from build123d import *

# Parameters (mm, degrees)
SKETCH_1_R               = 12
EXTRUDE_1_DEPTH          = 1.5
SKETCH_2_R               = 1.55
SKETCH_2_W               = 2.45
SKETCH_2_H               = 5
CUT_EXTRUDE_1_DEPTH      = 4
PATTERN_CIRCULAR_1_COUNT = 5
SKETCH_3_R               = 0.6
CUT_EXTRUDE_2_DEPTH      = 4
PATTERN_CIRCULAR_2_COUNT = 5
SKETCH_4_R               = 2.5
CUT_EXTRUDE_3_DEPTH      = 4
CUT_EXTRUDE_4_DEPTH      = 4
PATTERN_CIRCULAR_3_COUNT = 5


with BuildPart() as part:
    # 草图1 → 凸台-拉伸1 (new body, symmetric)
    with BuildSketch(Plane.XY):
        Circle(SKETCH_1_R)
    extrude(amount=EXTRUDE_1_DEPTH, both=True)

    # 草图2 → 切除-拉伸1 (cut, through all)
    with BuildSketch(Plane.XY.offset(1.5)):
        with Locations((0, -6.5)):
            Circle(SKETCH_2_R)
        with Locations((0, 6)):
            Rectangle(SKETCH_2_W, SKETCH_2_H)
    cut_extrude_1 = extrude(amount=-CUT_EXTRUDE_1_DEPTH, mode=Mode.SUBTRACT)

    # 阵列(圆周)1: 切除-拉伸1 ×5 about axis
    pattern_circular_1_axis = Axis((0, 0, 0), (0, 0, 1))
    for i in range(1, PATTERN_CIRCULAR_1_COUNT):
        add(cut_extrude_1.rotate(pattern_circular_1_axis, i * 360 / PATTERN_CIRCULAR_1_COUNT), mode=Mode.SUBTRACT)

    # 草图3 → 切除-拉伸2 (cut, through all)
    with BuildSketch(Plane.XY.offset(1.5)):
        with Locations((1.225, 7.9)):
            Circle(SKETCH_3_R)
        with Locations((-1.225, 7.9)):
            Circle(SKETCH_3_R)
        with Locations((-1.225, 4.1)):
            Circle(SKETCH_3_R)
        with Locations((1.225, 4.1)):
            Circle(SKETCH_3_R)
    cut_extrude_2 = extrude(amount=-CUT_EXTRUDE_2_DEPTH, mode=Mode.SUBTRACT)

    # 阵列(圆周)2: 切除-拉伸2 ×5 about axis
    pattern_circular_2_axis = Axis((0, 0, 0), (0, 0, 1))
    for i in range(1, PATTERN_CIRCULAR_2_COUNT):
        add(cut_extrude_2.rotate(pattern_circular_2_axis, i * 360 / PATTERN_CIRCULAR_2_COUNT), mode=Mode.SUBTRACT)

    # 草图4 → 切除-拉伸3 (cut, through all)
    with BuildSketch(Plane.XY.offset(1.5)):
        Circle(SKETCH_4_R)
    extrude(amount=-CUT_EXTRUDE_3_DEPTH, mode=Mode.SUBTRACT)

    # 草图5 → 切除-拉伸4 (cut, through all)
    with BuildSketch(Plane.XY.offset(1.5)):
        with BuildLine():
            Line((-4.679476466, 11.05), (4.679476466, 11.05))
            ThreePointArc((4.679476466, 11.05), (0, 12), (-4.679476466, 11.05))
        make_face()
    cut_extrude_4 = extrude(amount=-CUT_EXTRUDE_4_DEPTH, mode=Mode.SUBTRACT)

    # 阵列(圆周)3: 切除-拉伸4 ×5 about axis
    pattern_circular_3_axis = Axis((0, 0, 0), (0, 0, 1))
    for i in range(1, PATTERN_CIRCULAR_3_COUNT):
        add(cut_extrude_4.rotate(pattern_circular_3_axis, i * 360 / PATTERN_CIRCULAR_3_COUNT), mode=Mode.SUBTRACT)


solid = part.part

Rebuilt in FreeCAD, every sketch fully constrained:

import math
import FreeCAD as App
import Part
import Sketcher
from FreeCAD import Vector


def add_polygon(sketch, points):
    """Adds a closed chain of lines whose ends are joined by coincident constraints."""
    first, n = sketch.GeometryCount, len(points)
    for a, b in zip(points, points[1:] + points[:1]):
        sketch.addGeometry(Part.LineSegment(App.Vector(*a, 0), App.Vector(*b, 0)), False)
    for i in range(n):
        sketch.addConstraint(Sketcher.Constraint("Coincident", first + i, 2, first + (i + 1) % n, 1))

doc = App.newDocument("Part")
body = doc.addObject("PartDesign::Body", "Body")

# Sketch on XY plane
sketch1 = body.newObject("Sketcher::SketchObject", "Sketch")
sketch1.AttachmentSupport = (doc.getObject("XY_Plane"), [""])
sketch1.MapMode = "FlatFace"
sketch1.addGeometry(Part.Circle(Vector(0, 0, 0), Vector(0, 0, 1), 12), False)
sketch1.addConstraint([
    Sketcher.Constraint("Coincident", 0, 3, -1, 1),
    Sketcher.Constraint("Diameter", 0, 24.0),
])
pad1 = body.newObject("PartDesign::Pad", "Pad")
pad1.Profile = sketch1
pad1.Length = 3
pad1.Midplane = True

# Sketch on XY plane
sketch2 = body.newObject("Sketcher::SketchObject", "Sketch001")
sketch2.AttachmentSupport = (doc.getObject("XY_Plane"), [""])
sketch2.MapMode = "FlatFace"
sketch2.AttachmentOffset = App.Placement(Vector(0, 0, 1.5), App.Rotation())
sketch2.addGeometry(Part.Circle(Vector(0, -6.5, 0), Vector(0, 0, 1), 1.55), False)  # 0
add_polygon(sketch2, [(-1.225, 8.5), (-1.225, 3.5), (1.225, 3.5), (1.225, 8.5)])  # lines 1-4
sketch2.addConstraint([
    Sketcher.Constraint("Vertical", 1),
    Sketcher.Constraint("Horizontal", 2),
    Sketcher.Constraint("Vertical", 3),
    Sketcher.Constraint("Horizontal", 4),
    Sketcher.Constraint("PointOnObject", 0, 3, -2),
    Sketcher.Constraint("Diameter", 0, 3.1),
    Sketcher.Constraint("DistanceY", 1, 2, 1, 1, 5.0),
    Sketcher.Constraint("DistanceY", 0, 3, 1, 2, 10.0),
    Sketcher.Constraint("DistanceX", 2, 1, 2, 2, 2.45),
    Sketcher.Constraint("DistanceY", 0, 3, -1, 1, 6.5),
    Sketcher.Constraint("DistanceX", 1, 2, -1, 1, 1.225),
])
pocket1 = body.newObject("PartDesign::Pocket", "Pocket")
pocket1.Profile = sketch2
pocket1.Type = "ThroughAll"
doc.recompute()

polarpattern = body.newObject("PartDesign::PolarPattern", "PolarPattern")
polarpattern.Originals = [pocket1]
polarpattern.Axis = (doc.getObject("Z_Axis"), [""])
polarpattern.Angle = 360
polarpattern.Occurrences = 5
body.Tip = polarpattern

# Sketch on XY plane
sketch3 = body.newObject("Sketcher::SketchObject", "Sketch002")
sketch3.AttachmentSupport = (doc.getObject("XY_Plane"), [""])
sketch3.MapMode = "FlatFace"
sketch3.AttachmentOffset = App.Placement(Vector(0, 0, 1.5), App.Rotation())
sketch3.addGeometry([
    Part.Circle(Vector(1.225, 7.9, 0), Vector(0, 0, 1), 0.6),
    Part.Circle(Vector(-1.225, 7.9, 0), Vector(0, 0, 1), 0.6),
    Part.Circle(Vector(-1.225, 4.1, 0), Vector(0, 0, 1), 0.6),
    Part.Circle(Vector(1.225, 4.1, 0), Vector(0, 0, 1), 0.6),
], False)
sketch3.addConstraint([
    Sketcher.Constraint("Equal", 0, 1),
    Sketcher.Constraint("Equal", 1, 2),
    Sketcher.Constraint("Equal", 2, 3),
    Sketcher.Constraint("Symmetric", 0, 3, 1, 3, -2),
    Sketcher.Constraint("Symmetric", 2, 3, 3, 3, -2),
    Sketcher.Constraint("Vertical", 1, 3, 2, 3),
    Sketcher.Constraint("Diameter", 0, 1.2),
    Sketcher.Constraint("DistanceY", -1, 1, 0, 3, 7.9),
    Sketcher.Constraint("DistanceY", -1, 1, 2, 3, 4.1),
    Sketcher.Constraint("DistanceX", 1, 3, 0, 3, 2.45),
])
pocket2 = body.newObject("PartDesign::Pocket", "Pocket001")
pocket2.Profile = sketch3
pocket2.Type = "ThroughAll"
doc.recompute()

polarpattern2 = body.newObject("PartDesign::PolarPattern", "PolarPattern001")
polarpattern2.Originals = [pocket2]
polarpattern2.Axis = (doc.getObject("Z_Axis"), [""])
polarpattern2.Angle = 360
polarpattern2.Occurrences = 5
body.Tip = polarpattern2

# Sketch on XY plane
sketch4 = body.newObject("Sketcher::SketchObject", "Sketch003")
sketch4.AttachmentSupport = (doc.getObject("XY_Plane"), [""])
sketch4.MapMode = "FlatFace"
sketch4.AttachmentOffset = App.Placement(Vector(0, 0, 1.5), App.Rotation())
sketch4.addGeometry(Part.Circle(Vector(0, 0, 0), Vector(0, 0, 1), 2.5), False)
sketch4.addConstraint([
    Sketcher.Constraint("Coincident", 0, 3, -1, 1),
    Sketcher.Constraint("Diameter", 0, 5.0),
])
pocket3 = body.newObject("PartDesign::Pocket", "Pocket002")
pocket3.Profile = sketch4
pocket3.Type = "ThroughAll"

# Sketch on XY plane
sketch5 = body.newObject("Sketcher::SketchObject", "Sketch004")
sketch5.AttachmentSupport = (doc.getObject("XY_Plane"), [""])
sketch5.MapMode = "FlatFace"
sketch5.AttachmentOffset = App.Placement(Vector(0, 0, 1.5), App.Rotation())
sketch5.addGeometry([
    Part.LineSegment(Vector(-4.679476, 11.05, 0), Vector(4.679476, 11.05, 0)),
    Part.ArcOfCircle(Part.Circle(Vector(0, 0, 0), Vector(0, 0, 1), 12), math.radians(67.048215), math.radians(112.951785)),
], False)
sketch5.addConstraint([
    Sketcher.Constraint("Coincident", 0, 1, 1, 2),
    Sketcher.Constraint("Coincident", 1, 1, 0, 2),
    Sketcher.Constraint("Horizontal", 0),
    Sketcher.Constraint("Coincident", 1, 3, -1, 1),
    Sketcher.Constraint("Radius", 1, 12.0),
    Sketcher.Constraint("DistanceY", -1, 1, 0, 1, 11.05),
])
pocket4 = body.newObject("PartDesign::Pocket", "Pocket003")
pocket4.Profile = sketch5
pocket4.Type = "ThroughAll"
doc.recompute()

polarpattern3 = body.newObject("PartDesign::PolarPattern", "PolarPattern002")
polarpattern3.Originals = [pocket4]
polarpattern3.Axis = (doc.getObject("Z_Axis"), [""])
polarpattern3.Angle = 360
polarpattern3.Occurrences = 5
body.Tip = polarpattern3

doc.recompute()
